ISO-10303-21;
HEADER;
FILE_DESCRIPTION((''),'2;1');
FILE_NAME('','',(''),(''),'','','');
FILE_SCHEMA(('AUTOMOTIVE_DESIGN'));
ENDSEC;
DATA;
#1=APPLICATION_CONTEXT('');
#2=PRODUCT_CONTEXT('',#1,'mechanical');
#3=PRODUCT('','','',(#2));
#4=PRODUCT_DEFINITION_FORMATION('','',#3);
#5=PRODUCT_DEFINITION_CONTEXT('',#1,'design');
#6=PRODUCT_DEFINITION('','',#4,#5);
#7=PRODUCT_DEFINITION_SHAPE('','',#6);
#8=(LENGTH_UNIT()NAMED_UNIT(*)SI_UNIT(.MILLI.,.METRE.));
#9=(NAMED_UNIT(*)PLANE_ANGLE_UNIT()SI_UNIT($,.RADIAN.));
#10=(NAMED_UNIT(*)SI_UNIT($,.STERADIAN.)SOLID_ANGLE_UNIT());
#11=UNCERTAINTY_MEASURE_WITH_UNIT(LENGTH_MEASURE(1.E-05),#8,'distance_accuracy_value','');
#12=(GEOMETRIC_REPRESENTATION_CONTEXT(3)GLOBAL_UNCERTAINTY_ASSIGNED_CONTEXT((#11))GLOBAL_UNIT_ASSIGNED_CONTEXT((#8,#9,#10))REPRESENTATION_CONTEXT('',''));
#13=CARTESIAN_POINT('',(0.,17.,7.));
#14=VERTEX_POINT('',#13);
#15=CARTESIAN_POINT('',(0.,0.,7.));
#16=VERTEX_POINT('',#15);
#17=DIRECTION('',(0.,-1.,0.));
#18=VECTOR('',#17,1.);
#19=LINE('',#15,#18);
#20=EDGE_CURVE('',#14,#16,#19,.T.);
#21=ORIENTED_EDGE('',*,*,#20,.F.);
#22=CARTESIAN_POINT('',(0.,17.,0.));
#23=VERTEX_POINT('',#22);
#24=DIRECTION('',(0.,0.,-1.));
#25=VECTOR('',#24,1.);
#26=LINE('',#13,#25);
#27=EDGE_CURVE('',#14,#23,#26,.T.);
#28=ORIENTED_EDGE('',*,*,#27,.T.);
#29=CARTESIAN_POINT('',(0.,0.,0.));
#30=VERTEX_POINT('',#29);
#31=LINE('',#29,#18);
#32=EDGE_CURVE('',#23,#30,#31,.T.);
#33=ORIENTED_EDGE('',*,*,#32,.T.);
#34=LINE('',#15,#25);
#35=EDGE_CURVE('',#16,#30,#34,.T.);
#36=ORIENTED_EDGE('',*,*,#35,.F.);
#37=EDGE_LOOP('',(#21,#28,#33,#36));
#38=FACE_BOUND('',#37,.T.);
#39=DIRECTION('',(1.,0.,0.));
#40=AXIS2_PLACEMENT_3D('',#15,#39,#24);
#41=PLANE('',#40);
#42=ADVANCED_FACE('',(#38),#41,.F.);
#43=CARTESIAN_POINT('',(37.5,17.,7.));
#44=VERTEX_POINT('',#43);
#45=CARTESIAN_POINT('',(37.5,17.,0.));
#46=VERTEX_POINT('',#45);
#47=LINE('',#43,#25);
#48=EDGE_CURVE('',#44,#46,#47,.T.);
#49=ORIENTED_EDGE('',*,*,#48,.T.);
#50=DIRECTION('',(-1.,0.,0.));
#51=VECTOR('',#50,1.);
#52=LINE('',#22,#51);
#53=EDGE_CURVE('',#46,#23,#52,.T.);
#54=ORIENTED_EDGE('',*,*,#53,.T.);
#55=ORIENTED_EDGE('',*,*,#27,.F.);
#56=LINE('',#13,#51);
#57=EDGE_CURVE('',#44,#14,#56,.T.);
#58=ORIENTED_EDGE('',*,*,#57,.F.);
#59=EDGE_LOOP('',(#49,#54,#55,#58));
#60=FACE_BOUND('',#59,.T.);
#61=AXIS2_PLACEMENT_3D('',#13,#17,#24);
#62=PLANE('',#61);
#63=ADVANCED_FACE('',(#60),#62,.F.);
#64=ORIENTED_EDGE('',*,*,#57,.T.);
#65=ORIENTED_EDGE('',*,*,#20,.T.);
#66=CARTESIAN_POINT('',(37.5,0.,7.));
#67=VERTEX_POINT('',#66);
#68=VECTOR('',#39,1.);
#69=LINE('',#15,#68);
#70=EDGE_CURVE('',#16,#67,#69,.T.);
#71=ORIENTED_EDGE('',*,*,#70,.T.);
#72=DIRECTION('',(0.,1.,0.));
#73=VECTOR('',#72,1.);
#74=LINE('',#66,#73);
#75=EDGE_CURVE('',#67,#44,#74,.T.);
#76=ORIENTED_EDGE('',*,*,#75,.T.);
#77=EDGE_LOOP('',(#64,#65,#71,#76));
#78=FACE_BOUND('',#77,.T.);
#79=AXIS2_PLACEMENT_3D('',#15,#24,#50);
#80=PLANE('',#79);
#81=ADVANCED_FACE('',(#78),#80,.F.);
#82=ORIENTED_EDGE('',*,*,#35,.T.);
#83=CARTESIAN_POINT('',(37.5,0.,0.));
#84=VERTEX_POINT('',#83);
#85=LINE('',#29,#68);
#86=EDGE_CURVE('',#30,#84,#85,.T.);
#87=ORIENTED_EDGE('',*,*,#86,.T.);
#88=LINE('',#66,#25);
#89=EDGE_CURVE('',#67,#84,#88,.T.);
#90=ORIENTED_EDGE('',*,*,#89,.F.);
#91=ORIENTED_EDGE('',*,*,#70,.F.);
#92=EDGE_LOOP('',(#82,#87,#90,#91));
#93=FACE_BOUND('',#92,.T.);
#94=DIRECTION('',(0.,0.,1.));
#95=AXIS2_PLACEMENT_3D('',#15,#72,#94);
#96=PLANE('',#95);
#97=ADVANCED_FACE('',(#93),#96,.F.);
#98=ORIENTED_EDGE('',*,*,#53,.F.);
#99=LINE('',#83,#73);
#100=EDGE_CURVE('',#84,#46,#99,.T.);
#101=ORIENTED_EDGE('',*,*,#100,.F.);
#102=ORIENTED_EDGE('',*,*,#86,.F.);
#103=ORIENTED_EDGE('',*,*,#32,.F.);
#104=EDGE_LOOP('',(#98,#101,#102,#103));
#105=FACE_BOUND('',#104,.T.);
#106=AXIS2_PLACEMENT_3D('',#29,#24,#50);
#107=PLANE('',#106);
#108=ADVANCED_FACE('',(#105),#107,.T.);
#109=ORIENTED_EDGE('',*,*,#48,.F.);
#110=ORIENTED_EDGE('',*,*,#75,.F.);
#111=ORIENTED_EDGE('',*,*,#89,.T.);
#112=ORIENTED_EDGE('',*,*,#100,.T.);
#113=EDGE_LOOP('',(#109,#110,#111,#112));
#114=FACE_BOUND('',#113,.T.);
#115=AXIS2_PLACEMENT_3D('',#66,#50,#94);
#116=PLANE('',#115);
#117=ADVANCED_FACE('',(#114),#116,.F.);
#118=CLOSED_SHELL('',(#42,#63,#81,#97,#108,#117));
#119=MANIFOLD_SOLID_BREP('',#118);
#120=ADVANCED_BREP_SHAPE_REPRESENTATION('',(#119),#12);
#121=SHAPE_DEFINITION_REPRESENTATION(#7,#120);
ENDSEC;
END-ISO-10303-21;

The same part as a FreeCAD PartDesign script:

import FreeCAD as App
import Part
import Sketcher
Q = App.Units.Quantity


def add_polygon(sketch, points):
    """Adds a closed chain of lines whose ends are joined by coincident constraints."""
    first, n = sketch.GeometryCount, len(points)
    for a, b in zip(points, points[1:] + points[:1]):
        sketch.addGeometry(Part.LineSegment(App.Vector(*a, 0), App.Vector(*b, 0)), False)
    for i in range(n):
        sketch.addConstraint(Sketcher.Constraint("Coincident", first + i, 2, first + (i + 1) % n, 1))

doc = App.newDocument("Part")
body = doc.addObject("PartDesign::Body", "Body")

# Sketch on XY plane
sketch1 = doc.addObject("Sketcher::SketchObject", "Sketch")
body.addObject(sketch1)
sketch1.AttachmentSupport = (doc.XY_Plane, [""])
sketch1.MapMode = "FlatFace"
add_polygon(sketch1, [(0, 17), (0, 0), (38, 0), (38, 17)])  # lines 0-3
sketch1.addConstraint([
    Sketcher.Constraint("Vertical", 0),
    Sketcher.Constraint("Horizontal", 1),
    Sketcher.Constraint("Vertical", 2),
    Sketcher.Constraint("Horizontal", 3),
    Sketcher.Constraint("Coincident", 0, 2, -1, 1),
    Sketcher.Constraint("DistanceY", 0, 2, 0, 1, Q("17 mm")),
    Sketcher.Constraint("DistanceX", 1, 1, 1, 2, Q("37.5 mm")),
])
pad1 = doc.addObject("PartDesign::Pad", "Pad")
body.addObject(pad1)
pad1.Profile = sketch1
pad1.Length = 7

doc.recompute()
